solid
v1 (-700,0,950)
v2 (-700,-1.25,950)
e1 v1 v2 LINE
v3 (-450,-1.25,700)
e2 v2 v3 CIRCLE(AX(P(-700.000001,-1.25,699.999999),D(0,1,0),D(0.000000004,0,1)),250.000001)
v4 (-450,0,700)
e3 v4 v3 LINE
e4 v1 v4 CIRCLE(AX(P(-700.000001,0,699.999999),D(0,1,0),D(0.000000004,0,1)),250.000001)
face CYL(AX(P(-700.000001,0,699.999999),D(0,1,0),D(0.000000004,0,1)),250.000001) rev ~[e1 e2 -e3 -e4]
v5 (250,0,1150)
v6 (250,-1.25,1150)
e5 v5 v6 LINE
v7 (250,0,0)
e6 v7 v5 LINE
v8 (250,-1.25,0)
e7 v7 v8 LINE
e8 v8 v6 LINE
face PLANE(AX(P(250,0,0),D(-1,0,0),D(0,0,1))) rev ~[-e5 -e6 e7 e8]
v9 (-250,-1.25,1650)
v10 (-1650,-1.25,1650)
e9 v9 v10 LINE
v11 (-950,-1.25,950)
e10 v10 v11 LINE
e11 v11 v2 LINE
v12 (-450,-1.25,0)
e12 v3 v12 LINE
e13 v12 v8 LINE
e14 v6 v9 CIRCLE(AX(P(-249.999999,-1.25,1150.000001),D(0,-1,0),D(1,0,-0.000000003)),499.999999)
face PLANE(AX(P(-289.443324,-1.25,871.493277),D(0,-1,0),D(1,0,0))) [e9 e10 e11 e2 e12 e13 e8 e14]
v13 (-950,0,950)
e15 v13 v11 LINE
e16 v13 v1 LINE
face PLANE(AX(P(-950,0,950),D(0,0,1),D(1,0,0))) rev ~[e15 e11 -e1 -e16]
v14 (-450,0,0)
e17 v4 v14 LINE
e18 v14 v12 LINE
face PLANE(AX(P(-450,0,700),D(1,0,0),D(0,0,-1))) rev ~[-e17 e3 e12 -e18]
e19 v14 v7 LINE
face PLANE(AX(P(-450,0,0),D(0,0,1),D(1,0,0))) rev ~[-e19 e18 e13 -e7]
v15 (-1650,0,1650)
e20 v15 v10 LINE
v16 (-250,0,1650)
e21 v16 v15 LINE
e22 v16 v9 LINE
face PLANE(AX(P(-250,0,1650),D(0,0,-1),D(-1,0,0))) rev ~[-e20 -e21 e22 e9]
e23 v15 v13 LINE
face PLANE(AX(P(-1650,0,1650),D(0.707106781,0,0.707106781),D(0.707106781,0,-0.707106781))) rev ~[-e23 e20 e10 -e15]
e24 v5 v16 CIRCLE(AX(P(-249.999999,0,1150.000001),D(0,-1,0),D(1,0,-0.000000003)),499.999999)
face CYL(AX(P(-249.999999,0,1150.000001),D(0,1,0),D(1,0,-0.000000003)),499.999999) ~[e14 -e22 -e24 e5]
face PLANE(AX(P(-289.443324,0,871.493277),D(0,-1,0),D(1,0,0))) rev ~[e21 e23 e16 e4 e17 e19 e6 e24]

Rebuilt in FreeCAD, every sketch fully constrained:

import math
import FreeCAD as App
import Part
import Sketcher
Q = App.Units.Quantity

doc = App.newDocument("Part")
body = doc.addObject("PartDesign::Body", "Body")

sketch1 = body.newObject("Sketcher::SketchObject", "Sketch")
sketch1.AttachmentSupport = (doc.getObject("XZ_Plane"), [""])
sketch1.MapMode = "FlatFace"
sketch1.addGeometry([
    Part.LineSegment(App.Vector(-450, 0, 0), App.Vector(250, 0, 0)),
    Part.LineSegment(App.Vector(250, 0, 0), App.Vector(250, 1150, 0)),
    Part.ArcOfCircle(Part.Circle(App.Vector(-250, 1150, 0), App.Vector(0, 0, 1), 500), math.radians(0), math.radians(90)),
    Part.LineSegment(App.Vector(-250, 1650, 0), App.Vector(-1650, 1650, 0)),
    Part.LineSegment(App.Vector(-1650, 1650, 0), App.Vector(-950, 950, 0)),
    Part.LineSegment(App.Vector(-950, 950, 0), App.Vector(-700, 950, 0)),
    Part.ArcOfCircle(Part.Circle(App.Vector(-700, 700, 0), App.Vector(0, 0, 1), 250), math.radians(0), math.radians(90)),
    Part.LineSegment(App.Vector(-450, 700, 0), App.Vector(-450, 0, 0)),
], False)
sketch1.addConstraint([
    Sketcher.Constraint("Coincident", 0, 2, 1, 1),
    Sketcher.Constraint("Tangent", 1, 2, 2, 1),
    Sketcher.Constraint("Tangent", 2, 2, 3, 1),
    Sketcher.Constraint("Coincident", 3, 2, 4, 1),
    Sketcher.Constraint("Coincident", 4, 2, 5, 1),
    Sketcher.Constraint("Tangent", 5, 2, 6, 2),
    Sketcher.Constraint("Tangent", 6, 1, 7, 1),
    Sketcher.Constraint("Coincident", 7, 2, 0, 1),
    Sketcher.Constraint("Horizontal", 0),
    Sketcher.Constraint("Vertical", 1),
    Sketcher.Constraint("Horizontal", 3),
    Sketcher.Constraint("Horizontal", 5),
    Sketcher.Constraint("Vertical", 7),
    Sketcher.Constraint("PointOnObject", 0, 2, -1),
    Sketcher.Constraint("Equal", 0, 7),
    Sketcher.Constraint("Radius", 2, Q("499.999999 mm")),
    Sketcher.Constraint("Radius", 6, Q("250.000001 mm")),
    Sketcher.Constraint("DistanceX", 0, 1, 0, 2, Q("700 mm")),
    Sketcher.Constraint("DistanceX", 3, 2, 3, 1, Q("1400 mm")),
    Sketcher.Constraint("DistanceX", 5, 1, 5, 2, Q("250 mm")),
    Sketcher.Constraint("DistanceY", 1, 1, 1, 2, Q("1150 mm")),
    Sketcher.Constraint("DistanceX", 2, 3, -1, 1, Q("249.999999 mm")),
])
pad1 = body.newObject("PartDesign::Pad", "Pad")
pad1.Profile = sketch1
pad1.Length = 1.25

doc.recompute()
